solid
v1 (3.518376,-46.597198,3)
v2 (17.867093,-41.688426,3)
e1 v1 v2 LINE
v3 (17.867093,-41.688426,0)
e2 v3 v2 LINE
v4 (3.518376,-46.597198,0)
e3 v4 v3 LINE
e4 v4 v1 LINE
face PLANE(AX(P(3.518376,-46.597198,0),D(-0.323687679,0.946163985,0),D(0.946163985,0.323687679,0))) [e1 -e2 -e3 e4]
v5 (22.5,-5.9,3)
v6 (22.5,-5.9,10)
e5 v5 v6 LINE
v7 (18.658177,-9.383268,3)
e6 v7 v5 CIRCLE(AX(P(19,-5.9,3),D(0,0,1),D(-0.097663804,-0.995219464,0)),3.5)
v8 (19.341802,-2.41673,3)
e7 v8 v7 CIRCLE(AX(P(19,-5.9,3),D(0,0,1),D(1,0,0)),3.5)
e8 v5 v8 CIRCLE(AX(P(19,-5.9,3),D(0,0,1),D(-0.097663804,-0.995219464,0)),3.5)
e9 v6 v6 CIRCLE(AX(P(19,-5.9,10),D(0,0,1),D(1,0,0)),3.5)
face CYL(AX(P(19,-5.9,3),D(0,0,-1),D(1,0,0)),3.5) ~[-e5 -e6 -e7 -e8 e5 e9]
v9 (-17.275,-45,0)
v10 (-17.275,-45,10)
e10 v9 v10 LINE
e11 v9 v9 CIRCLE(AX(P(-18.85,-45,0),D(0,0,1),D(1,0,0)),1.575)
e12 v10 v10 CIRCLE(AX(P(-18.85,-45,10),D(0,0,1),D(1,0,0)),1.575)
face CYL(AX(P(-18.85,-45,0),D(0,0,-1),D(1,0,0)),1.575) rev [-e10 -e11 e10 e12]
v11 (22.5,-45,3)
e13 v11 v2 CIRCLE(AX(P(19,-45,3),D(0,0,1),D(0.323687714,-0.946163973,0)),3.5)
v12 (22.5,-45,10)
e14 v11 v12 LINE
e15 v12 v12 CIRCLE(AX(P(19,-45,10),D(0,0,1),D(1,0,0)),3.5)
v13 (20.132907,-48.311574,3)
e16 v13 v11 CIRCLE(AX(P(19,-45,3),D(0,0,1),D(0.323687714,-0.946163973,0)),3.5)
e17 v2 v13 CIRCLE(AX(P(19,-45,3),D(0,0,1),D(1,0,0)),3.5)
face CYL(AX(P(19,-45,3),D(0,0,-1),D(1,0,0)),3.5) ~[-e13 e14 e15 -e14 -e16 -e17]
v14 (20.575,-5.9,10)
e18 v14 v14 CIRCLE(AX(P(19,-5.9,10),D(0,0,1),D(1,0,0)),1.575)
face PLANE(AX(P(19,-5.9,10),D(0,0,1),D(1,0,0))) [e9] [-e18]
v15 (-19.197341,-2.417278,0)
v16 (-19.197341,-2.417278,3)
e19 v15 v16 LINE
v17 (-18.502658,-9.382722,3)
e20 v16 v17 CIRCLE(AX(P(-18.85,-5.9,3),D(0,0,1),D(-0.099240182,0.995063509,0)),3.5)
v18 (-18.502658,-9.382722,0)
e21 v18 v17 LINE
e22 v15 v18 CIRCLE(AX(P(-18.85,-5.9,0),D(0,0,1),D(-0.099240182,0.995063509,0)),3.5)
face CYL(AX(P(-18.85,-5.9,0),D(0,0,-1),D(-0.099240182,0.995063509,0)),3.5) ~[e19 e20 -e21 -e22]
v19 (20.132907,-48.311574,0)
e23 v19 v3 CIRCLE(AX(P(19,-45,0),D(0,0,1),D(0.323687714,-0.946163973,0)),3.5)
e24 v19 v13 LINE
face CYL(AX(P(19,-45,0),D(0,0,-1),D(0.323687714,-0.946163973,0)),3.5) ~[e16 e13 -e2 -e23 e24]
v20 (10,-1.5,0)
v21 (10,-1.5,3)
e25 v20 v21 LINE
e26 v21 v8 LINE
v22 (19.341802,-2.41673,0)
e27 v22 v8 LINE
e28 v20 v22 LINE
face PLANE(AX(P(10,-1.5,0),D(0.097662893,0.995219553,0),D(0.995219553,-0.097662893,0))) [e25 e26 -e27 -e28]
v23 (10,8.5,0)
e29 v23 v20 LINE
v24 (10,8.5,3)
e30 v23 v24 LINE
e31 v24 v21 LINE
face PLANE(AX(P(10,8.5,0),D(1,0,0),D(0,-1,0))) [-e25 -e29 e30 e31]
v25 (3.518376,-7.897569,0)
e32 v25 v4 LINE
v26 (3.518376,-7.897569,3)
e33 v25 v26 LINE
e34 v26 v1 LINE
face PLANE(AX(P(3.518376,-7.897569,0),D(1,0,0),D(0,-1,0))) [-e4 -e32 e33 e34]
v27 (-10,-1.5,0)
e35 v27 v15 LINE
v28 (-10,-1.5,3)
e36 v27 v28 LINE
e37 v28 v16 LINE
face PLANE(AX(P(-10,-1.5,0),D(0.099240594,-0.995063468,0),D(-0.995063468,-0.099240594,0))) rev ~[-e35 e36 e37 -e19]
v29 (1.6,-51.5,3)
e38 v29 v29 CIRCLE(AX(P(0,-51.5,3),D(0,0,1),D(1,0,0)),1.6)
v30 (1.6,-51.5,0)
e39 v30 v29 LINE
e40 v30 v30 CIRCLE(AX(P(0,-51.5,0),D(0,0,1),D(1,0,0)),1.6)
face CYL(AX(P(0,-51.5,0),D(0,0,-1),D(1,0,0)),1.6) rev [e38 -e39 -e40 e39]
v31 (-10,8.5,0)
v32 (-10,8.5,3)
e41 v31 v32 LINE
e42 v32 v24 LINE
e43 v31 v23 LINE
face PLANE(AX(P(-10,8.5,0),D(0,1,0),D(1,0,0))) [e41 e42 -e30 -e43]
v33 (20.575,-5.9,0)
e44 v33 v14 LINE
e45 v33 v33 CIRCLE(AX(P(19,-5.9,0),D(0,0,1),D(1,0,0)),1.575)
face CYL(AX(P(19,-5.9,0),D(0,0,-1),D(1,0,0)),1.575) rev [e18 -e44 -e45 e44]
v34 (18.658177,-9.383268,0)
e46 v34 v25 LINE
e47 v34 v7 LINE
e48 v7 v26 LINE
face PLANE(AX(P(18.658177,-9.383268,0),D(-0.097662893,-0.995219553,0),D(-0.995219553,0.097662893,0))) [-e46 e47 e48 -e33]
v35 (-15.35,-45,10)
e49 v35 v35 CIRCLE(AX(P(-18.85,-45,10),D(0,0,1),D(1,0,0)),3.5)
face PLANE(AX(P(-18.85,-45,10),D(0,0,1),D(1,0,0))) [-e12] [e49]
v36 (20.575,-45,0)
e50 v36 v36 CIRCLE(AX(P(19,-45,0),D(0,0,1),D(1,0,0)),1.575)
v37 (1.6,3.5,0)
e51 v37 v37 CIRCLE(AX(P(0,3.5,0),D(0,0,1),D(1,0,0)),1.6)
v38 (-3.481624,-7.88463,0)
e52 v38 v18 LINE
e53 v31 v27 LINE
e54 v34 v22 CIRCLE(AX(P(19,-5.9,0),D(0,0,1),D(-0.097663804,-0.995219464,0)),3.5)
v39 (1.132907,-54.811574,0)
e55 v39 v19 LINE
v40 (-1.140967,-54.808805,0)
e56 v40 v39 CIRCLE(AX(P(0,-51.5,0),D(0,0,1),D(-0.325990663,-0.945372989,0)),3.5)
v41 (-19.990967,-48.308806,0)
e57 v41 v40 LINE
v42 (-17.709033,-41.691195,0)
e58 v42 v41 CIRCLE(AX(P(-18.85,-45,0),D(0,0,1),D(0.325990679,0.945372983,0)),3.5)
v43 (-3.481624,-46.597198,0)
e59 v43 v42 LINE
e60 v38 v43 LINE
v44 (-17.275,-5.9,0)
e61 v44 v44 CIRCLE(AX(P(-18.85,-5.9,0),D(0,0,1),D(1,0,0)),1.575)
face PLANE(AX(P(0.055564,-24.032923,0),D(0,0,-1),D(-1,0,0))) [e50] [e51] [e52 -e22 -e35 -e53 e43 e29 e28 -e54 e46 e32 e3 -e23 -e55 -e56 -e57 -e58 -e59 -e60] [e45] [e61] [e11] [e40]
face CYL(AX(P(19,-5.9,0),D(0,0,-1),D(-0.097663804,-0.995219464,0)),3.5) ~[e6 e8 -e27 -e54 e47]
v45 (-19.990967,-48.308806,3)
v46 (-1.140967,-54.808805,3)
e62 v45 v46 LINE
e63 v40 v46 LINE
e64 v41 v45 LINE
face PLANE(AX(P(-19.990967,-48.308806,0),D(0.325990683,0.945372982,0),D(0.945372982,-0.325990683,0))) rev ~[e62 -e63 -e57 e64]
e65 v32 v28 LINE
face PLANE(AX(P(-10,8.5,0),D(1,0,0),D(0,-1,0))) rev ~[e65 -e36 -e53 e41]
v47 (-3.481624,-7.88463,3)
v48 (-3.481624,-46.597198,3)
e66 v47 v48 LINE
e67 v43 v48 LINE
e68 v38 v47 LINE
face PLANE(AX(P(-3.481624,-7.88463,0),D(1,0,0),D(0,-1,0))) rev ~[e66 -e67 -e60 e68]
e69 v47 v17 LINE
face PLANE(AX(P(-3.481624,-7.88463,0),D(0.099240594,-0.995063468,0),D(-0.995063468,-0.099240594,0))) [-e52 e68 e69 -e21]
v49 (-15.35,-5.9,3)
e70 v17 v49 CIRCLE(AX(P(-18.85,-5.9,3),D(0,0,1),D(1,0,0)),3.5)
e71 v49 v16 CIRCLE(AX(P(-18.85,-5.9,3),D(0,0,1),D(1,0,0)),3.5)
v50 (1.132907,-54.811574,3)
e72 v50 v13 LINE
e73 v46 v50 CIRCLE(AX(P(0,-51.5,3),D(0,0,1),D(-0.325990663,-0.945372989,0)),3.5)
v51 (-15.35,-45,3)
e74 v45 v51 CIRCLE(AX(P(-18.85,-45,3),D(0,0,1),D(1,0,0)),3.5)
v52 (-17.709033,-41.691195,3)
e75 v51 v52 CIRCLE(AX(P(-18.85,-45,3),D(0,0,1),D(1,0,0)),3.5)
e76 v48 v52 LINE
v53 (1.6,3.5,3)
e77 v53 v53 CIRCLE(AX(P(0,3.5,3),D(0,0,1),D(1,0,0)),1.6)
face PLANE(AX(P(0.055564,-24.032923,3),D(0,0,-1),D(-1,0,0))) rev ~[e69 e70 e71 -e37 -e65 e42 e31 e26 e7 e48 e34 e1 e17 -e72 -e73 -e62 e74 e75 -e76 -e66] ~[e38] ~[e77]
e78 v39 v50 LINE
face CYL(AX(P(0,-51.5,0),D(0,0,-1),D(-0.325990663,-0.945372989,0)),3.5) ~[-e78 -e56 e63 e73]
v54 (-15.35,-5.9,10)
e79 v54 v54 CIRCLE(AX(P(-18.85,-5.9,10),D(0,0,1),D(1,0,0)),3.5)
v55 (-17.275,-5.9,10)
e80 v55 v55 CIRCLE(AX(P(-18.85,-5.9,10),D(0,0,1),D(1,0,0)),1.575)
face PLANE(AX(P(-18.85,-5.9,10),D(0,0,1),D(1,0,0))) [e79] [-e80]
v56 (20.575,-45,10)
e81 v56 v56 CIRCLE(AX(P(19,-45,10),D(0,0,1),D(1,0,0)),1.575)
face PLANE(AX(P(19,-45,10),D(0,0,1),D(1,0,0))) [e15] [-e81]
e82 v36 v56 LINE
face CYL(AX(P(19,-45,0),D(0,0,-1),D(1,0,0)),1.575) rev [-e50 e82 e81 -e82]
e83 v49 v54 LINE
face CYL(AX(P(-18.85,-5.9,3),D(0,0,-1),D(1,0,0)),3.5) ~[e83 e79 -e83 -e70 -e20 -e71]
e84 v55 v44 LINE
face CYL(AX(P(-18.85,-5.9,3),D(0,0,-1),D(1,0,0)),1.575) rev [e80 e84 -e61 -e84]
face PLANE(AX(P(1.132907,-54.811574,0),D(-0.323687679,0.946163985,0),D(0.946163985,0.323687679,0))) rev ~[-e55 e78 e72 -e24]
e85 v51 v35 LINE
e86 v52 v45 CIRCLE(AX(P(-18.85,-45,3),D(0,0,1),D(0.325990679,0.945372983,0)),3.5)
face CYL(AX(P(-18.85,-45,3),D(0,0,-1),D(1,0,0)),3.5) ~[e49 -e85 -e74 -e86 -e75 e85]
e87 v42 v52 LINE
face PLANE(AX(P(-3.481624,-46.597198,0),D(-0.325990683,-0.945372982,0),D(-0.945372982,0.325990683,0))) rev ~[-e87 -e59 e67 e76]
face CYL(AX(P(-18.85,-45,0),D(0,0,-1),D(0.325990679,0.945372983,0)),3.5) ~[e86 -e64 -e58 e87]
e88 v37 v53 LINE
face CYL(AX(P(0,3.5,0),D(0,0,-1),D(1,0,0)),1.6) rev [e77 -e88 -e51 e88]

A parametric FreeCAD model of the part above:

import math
import FreeCAD as App
import Part
import Sketcher
from FreeCAD import Vector

doc = App.newDocument("Part")
body = doc.addObject("PartDesign::Body", "Body")

sketch1 = body.newObject("Sketcher::SketchObject", "Sketch")
sketch1.AttachmentSupport = (doc.getObject("XY_Plane"), [""])
sketch1.MapMode = "FlatFace"
sketch1.addGeometry(Part.LineSegment(Vector(10, 8.5, 0), Vector(-10, 8.5, 0)), False)
sketch1.addGeometry(Part.LineSegment(Vector(-10, 8.5, 0), Vector(-10, -1.5, 0)), False)
sketch1.addGeometry(Part.LineSegment(Vector(-10, -1.5, 0), Vector(-19.197341, -2.417278, 0)), False)
sketch1.addGeometry(Part.ArcOfCircle(Part.Circle(Vector(-18.85, -5.9, 0), Vector(0, 0, 1), 3.5), math.radians(95.695418), math.radians(275.695446)), False)
sketch1.addGeometry(Part.LineSegment(Vector(-18.502658, -9.382722, 0), Vector(-3.481624, -7.88463, 0)), False)
sketch1.addGeometry(Part.LineSegment(Vector(-3.481624, -7.88463, 0), Vector(-3.481624, -46.597198, 0)), False)
sketch1.addGeometry(Part.LineSegment(Vector(-3.481624, -46.597198, 0), Vector(-17.709033, -41.691195, 0)), False)
sketch1.addGeometry(Part.ArcOfCircle(Part.Circle(Vector(-18.85, -45, 0), Vector(0, 0, 1), 3.5), math.radians(70.974394), math.radians(250.9744)), False)
sketch1.addGeometry(Part.LineSegment(Vector(-19.990967, -48.308806, 0), Vector(-1.140967, -54.808805, 0)), False)
sketch1.addGeometry(Part.ArcOfCircle(Part.Circle(Vector(0, -51.5, 0), Vector(0, 0, 1), 3.5), math.radians(-109.025605), math.radians(-71.113915)), False)
sketch1.addGeometry(Part.LineSegment(Vector(1.132907, -54.811574, 0), Vector(20.132907, -48.311574, 0)), False)
sketch1.addGeometry(Part.ArcOfCircle(Part.Circle(Vector(19, -45, 0), Vector(0, 0, 1), 3.5), math.radians(-71.113911), math.radians(108.886089)), False)
sketch1.addGeometry(Part.LineSegment(Vector(17.867093, -41.688426, 0), Vector(3.518376, -46.597198, 0)), False)
sketch1.addGeometry(Part.LineSegment(Vector(3.518376, -46.597198, 0), Vector(3.518376, -7.897569, 0)), False)
sketch1.addGeometry(Part.LineSegment(Vector(3.518376, -7.897569, 0), Vector(18.658177, -9.383268, 0)), False)
sketch1.addGeometry(Part.ArcOfCircle(Part.Circle(Vector(19, -5.9, 0), Vector(0, 0, 1), 3.5), math.radians(-95.604658), math.radians(84.395695)), False)
sketch1.addGeometry(Part.LineSegment(Vector(19.341802, -2.41673, 0), Vector(10, -1.5, 0)), False)
sketch1.addGeometry(Part.LineSegment(Vector(10, -1.5, 0), Vector(10, 8.5, 0)), False)
sketch1.addGeometry(Part.Circle(Vector(19, -45, 0), Vector(0, 0, 1), 1.575), False)
sketch1.addGeometry(Part.Circle(Vector(0, -51.5, 0), Vector(0, 0, 1), 1.6), False)
sketch1.addGeometry(Part.Circle(Vector(-18.85, -45, 0), Vector(0, 0, 1), 1.575), False)
sketch1.addGeometry(Part.Circle(Vector(19, -5.9, 0), Vector(0, 0, 1), 1.575), False)
sketch1.addGeometry(Part.Circle(Vector(0, 3.5, 0), Vector(0, 0, 1), 1.6), False)
sketch1.addGeometry(Part.Circle(Vector(-18.85, -5.9, 0), Vector(0, 0, 1), 1.575), False)
sketch1.addConstraint(Sketcher.Constraint("Coincident", 0, 2, 1, 1))
sketch1.addConstraint(Sketcher.Constraint("Coincident", 1, 2, 2, 1))
sketch1.addConstraint(Sketcher.Constraint("Tangent", 2, 2, 3, 1))
sketch1.addConstraint(Sketcher.Constraint("Tangent", 3, 2, 4, 1))
sketch1.addConstraint(Sketcher.Constraint("Coincident", 4, 2, 5, 1))
sketch1.addConstraint(Sketcher.Constraint("Coincident", 5, 2, 6, 1))
sketch1.addConstraint(Sketcher.Constraint("Tangent", 6, 2, 7, 1))
sketch1.addConstraint(Sketcher.Constraint("Tangent", 7, 2, 8, 1))
sketch1.addConstraint(Sketcher.Constraint("Tangent", 8, 2, 9, 1))
sketch1.addConstraint(Sketcher.Constraint("Tangent", 9, 2, 10, 1))
sketch1.addConstraint(Sketcher.Constraint("Tangent", 10, 2, 11, 1))
sketch1.addConstraint(Sketcher.Constraint("Tangent", 11, 2, 12, 1))
sketch1.addConstraint(Sketcher.Constraint("Coincident", 12, 2, 13, 1))
sketch1.addConstraint(Sketcher.Constraint("Coincident", 13, 2, 14, 1))
sketch1.addConstraint(Sketcher.Constraint("Tangent", 14, 2, 15, 1))
sketch1.addConstraint(Sketcher.Constraint("Coincident", 15, 2, 16, 1))
sketch1.addConstraint(Sketcher.Constraint("Coincident", 16, 2, 17, 1))
sketch1.addConstraint(Sketcher.Constraint("Coincident", 17, 2, 0, 1))
sketch1.addConstraint(Sketcher.Constraint("Horizontal", 0))
sketch1.addConstraint(Sketcher.Constraint("Vertical", 1))
sketch1.addConstraint(Sketcher.Constraint("Vertical", 5))
sketch1.addConstraint(Sketcher.Constraint("Vertical", 13))
sketch1.addConstraint(Sketcher.Constraint("Vertical", 17))
sketch1.addConstraint(Sketcher.Constraint("Coincident", 18, 3, 11, 3))
sketch1.addConstraint(Sketcher.Constraint("Coincident", 19, 3, 9, 3))
sketch1.addConstraint(Sketcher.Constraint("Coincident", 20, 3, 7, 3))
sketch1.addConstraint(Sketcher.Constraint("Coincident", 21, 3, 15, 3))
sketch1.addConstraint(Sketcher.Constraint("Coincident", 23, 3, 3, 3))
sketch1.addConstraint(Sketcher.Constraint("Equal", 3, 7))
sketch1.addConstraint(Sketcher.Constraint("Equal", 7, 9))
sketch1.addConstraint(Sketcher.Constraint("Equal", 9, 11))
sketch1.addConstraint(Sketcher.Constraint("Equal", 11, 15))
sketch1.addConstraint(Sketcher.Constraint("Equal", 18, 20))
sketch1.addConstraint(Sketcher.Constraint("Equal", 20, 21))
sketch1.addConstraint(Sketcher.Constraint("Equal", 19, 22))
sketch1.addConstraint(Sketcher.Constraint("Equal", 21, 23))
sketch1.addConstraint(Sketcher.Constraint("Symmetric", 1, 2, 16, 2, -2))
sketch1.addConstraint(Sketcher.Constraint("PointOnObject", 9, 3, -2))
sketch1.addConstraint(Sketcher.Constraint("PointOnObject", 22, 3, -2))
sketch1.addConstraint(Sketcher.Constraint("Parallel", 2, 4))
sketch1.addConstraint(Sketcher.Constraint("Parallel", 6, 8))
sketch1.addConstraint(Sketcher.Constraint("Parallel", 10, 12))
sketch1.addConstraint(Sketcher.Constraint("Parallel", 14, 16))
sketch1.addConstraint(Sketcher.Constraint("Horizontal", 7, 3, 11, 3))
sketch1.addConstraint(Sketcher.Constraint("Horizontal", 3, 3, 15, 3))
sketch1.addConstraint(Sketcher.Constraint("Horizontal", 5, 2, 12, 2))
sketch1.addConstraint(Sketcher.Constraint("Vertical", 3, 3, 7, 3))
sketch1.addConstraint(Sketcher.Constraint("Vertical", 11, 3, 15, 3))
sketch1.addConstraint(Sketcher.Constraint("Diameter", 19, 3.2))
sketch1.addConstraint(Sketcher.Constraint("Radius", 3, 3.5))
sketch1.addConstraint(Sketcher.Constraint("Diameter", 18, 3.15))
sketch1.addConstraint(Sketcher.Constraint("DistanceX", 0, 2, 0, 1, 20.0))
sketch1.addConstraint(Sketcher.Constraint("DistanceY", 1, 2, 1, 1, 10.0))
sketch1.addConstraint(Sketcher.Constraint("DistanceY", 7, 3, -1, 1, 45.0))
sketch1.addConstraint(Sketcher.Constraint("DistanceX", -1, 1, 11, 3, 19.0))
sketch1.addConstraint(Sketcher.Constraint("DistanceY", 22, 3, 0, 2, 5.0))
sketch1.addConstraint(Sketcher.Constraint("DistanceX", 5, 2, 12, 2, 7.0))
sketch1.addConstraint(Sketcher.Constraint("DistanceY", 3, 3, -1, 1, 5.9))
sketch1.addConstraint(Sketcher.Constraint("DistanceY", 9, 3, -1, 1, 51.5))
sketch1.addConstraint(Sketcher.Constraint("DistanceY", -1, 1, 22, 3, 3.5))
sketch1.addConstraint(Sketcher.Constraint("DistanceX", 3, 3, -1, 1, 18.85))
sketch1.addConstraint(Sketcher.Constraint("DistanceX", -1, 1, 15, 2, 19.341802))
pad1 = body.newObject("PartDesign::Pad", "Pad")
pad1.Profile = sketch1
pad1.Length = 3

sketch2 = body.newObject("Sketcher::SketchObject", "Sketch001")
sketch2.AttachmentSupport = (doc.getObject("XY_Plane"), [""])
sketch2.MapMode = "FlatFace"
sketch2.AttachmentOffset = App.Placement(Vector(0, 0, 3), App.Rotation())
sketch2.addGeometry(Part.Circle(Vector(-18.85, -5.9, 0), Vector(0, 0, 1), 3.5), False)
sketch2.addGeometry(Part.Circle(Vector(-18.85, -5.9, 0), Vector(0, 0, 1), 1.575), False)
sketch2.addGeometry(Part.Circle(Vector(19, -5.9, 0), Vector(0, 0, 1), 3.5), False)
sketch2.addGeometry(Part.Circle(Vector(19, -5.9, 0), Vector(0, 0, 1), 1.575), False)
sketch2.addGeometry(Part.Circle(Vector(19, -45, 0), Vector(0, 0, 1), 3.5), False)
sketch2.addGeometry(Part.Circle(Vector(19, -45, 0), Vector(0, 0, 1), 1.575), False)
sketch2.addGeometry(Part.Circle(Vector(-18.85, -45, 0), Vector(0, 0, 1), 3.5), False)
sketch2.addGeometry(Part.Circle(Vector(-18.85, -45, 0), Vector(0, 0, 1), 1.575), False)
sketch2.addConstraint(Sketcher.Constraint("Coincident", 1, 3, 0, 3))
sketch2.addConstraint(Sketcher.Constraint("Coincident", 3, 3, 2, 3))
sketch2.addConstraint(Sketcher.Constraint("Coincident", 5, 3, 4, 3))
sketch2.addConstraint(Sketcher.Constraint("Coincident", 7, 3, 6, 3))
sketch2.addConstraint(Sketcher.Constraint("Equal", 0, 2))
sketch2.addConstraint(Sketcher.Constraint("Equal", 1, 3))
sketch2.addConstraint(Sketcher.Constraint("Equal", 2, 4))
sketch2.addConstraint(Sketcher.Constraint("Equal", 3, 5))
sketch2.addConstraint(Sketcher.Constraint("Equal", 4, 6))
sketch2.addConstraint(Sketcher.Constraint("Equal", 5, 7))
sketch2.addConstraint(Sketcher.Constraint("Horizontal", 1, 3, 2, 3))
sketch2.addConstraint(Sketcher.Constraint("Horizontal", 5, 3, 6, 3))
sketch2.addConstraint(Sketcher.Constraint("Vertical", 3, 3, 4, 3))
sketch2.addConstraint(Sketcher.Constraint("Vertical", 1, 3, 6, 3))
sketch2.addConstraint(Sketcher.Constraint("Diameter", 0, 7.0))
sketch2.addConstraint(Sketcher.Constraint("Diameter", 1, 3.15))
sketch2.addConstraint(Sketcher.Constraint("DistanceX", -1, 1, 2, 3, 19.0))
sketch2.addConstraint(Sketcher.Constraint("DistanceY", 4, 3, -1, 1, 45.0))
sketch2.addConstraint(Sketcher.Constraint("DistanceY", 0, 3, -1, 1, 5.9))
sketch2.addConstraint(Sketcher.Constraint("DistanceX", 0, 3, -1, 1, 18.85))
pad2 = body.newObject("PartDesign::Pad", "Pad001")
pad2.Profile = sketch2
pad2.Length = 7

doc.recompute()
